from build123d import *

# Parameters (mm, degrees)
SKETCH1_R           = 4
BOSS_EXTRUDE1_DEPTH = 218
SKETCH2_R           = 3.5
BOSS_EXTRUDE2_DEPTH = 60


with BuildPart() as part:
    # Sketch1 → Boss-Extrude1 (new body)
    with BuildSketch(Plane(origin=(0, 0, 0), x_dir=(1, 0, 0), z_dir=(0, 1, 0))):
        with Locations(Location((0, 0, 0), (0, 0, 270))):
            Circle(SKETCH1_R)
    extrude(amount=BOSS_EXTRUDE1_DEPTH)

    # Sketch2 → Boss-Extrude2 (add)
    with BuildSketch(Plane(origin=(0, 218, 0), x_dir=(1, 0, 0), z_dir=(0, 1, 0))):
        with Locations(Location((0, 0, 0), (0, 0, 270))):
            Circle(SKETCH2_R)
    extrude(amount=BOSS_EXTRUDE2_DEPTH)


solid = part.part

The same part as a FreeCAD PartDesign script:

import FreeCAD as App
import Part
import Sketcher
Q = App.Units.Quantity

doc = App.newDocument("Part")
body = doc.addObject("PartDesign::Body", "Body")

# Sketch on XZ plane
sketch1 = doc.addObject("Sketcher::SketchObject", "Sketch")
body.addObject(sketch1)
sketch1.AttachmentSupport = (doc.XZ_Plane, [""])
sketch1.MapMode = "FlatFace"
sketch1.addGeometry(Part.Circle(App.Vector(0, 0, 0), App.Vector(0, 0, 1), 4), False)
sketch1.addConstraint(Sketcher.Constraint("Coincident", 0, 3, -1, 1))
sketch1.addConstraint(Sketcher.Constraint("Diameter", 0, Q("8 mm")))
pad1 = doc.addObject("PartDesign::Pad", "Pad")
body.addObject(pad1)
pad1.Profile = sketch1
pad1.Length = 218
pad1.Reversed = True

# Sketch on XZ plane
sketch2 = doc.addObject("Sketcher::SketchObject", "Sketch001")
body.addObject(sketch2)
sketch2.AttachmentSupport = (doc.XZ_Plane, [""])
sketch2.MapMode = "FlatFace"
sketch2.AttachmentOffset = App.Placement(App.Vector(0, 0, -218), App.Rotation())
sketch2.addGeometry(Part.Circle(App.Vector(0, 0, 0), App.Vector(0, 0, 1), 3.5), False)
sketch2.addConstraint(Sketcher.Constraint("Coincident", 0, 3, -1, 1))
sketch2.addConstraint(Sketcher.Constraint("Diameter", 0, Q("7 mm")))
pad2 = doc.addObject("PartDesign::Pad", "Pad001")
body.addObject(pad2)
pad2.Profile = sketch2
pad2.Length = 60
pad2.Reversed = True

doc.recompute()
